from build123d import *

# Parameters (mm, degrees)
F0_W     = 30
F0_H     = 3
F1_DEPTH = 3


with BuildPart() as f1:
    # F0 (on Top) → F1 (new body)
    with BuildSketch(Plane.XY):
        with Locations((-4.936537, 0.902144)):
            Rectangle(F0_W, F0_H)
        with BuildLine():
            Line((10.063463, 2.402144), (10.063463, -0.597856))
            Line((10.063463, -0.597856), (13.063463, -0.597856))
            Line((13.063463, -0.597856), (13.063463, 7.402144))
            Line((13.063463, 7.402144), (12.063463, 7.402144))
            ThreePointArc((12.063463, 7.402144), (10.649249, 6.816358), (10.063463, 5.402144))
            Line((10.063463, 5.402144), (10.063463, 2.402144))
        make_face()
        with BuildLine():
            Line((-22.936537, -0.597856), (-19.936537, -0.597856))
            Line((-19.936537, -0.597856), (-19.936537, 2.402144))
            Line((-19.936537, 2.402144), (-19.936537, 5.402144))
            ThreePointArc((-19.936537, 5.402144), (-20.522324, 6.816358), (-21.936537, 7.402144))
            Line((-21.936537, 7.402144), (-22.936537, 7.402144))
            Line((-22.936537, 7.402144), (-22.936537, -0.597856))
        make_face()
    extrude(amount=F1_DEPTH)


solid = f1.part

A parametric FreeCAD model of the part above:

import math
import FreeCAD as App
import Part
import Sketcher

doc = App.newDocument("Part")
params = doc.addObject("Spreadsheet::Sheet", "Params")
for row, (alias, value) in enumerate([
    ("sketch1_radius", "1.999999 mm"),
    ("sketch1_width", "1 mm"),
    ("sketch1_width2", "30 mm"),
    ("sketch1_height", "8 mm"),
    ("sketch1_height2", "3 mm"),
    ("pad1_length", "3 mm"),
], start=1):
    params.set(f"A{row}", alias)
    params.set(f"B{row}", "=" + value)
    params.setAlias(f"B{row}", alias)

body = doc.addObject("PartDesign::Body", "Body")

sketch1 = body.newObject("Sketcher::SketchObject", "Sketch")
sketch1.AttachmentSupport = (doc.getObject("XY_Plane"), [""])
sketch1.MapMode = "FlatFace"
sketch1.addGeometry(Part.LineSegment(App.Vector(13.1, -0.6, 0), App.Vector(13.1, 7.4, 0)), False)
sketch1.addGeometry(Part.LineSegment(App.Vector(13.1, 7.4, 0), App.Vector(12.1, 7.4, 0)), False)
sketch1.addGeometry(Part.ArcOfCircle(Part.Circle(App.Vector(12.1, 5.4, 0), App.Vector(0, 0, 1), 2), math.radians(90), math.radians(180)), False)
sketch1.addGeometry(Part.LineSegment(App.Vector(10.1, 5.4, 0), App.Vector(10.1, 2.4, 0)), False)
sketch1.addGeometry(Part.LineSegment(App.Vector(10.1, 2.4, 0), App.Vector(-19.9, 2.4, 0)), False)
sketch1.addGeometry(Part.LineSegment(App.Vector(-19.9, 2.4, 0), App.Vector(-19.9, 5.4, 0)), False)
sketch1.addGeometry(Part.ArcOfCircle(Part.Circle(App.Vector(-21.9, 5.4, 0), App.Vector(0, 0, 1), 2), math.radians(0), math.radians(90)), False)
sketch1.addGeometry(Part.LineSegment(App.Vector(-21.9, 7.4, 0), App.Vector(-22.9, 7.4, 0)), False)
sketch1.addGeometry(Part.LineSegment(App.Vector(-22.9, 7.4, 0), App.Vector(-22.9, -0.6, 0)), False)
sketch1.addGeometry(Part.LineSegment(App.Vector(-22.9, -0.6, 0), App.Vector(13.1, -0.6, 0)), False)
sketch1.addConstraint(Sketcher.Constraint("Coincident", 0, 2, 1, 1))
sketch1.addConstraint(Sketcher.Constraint("Tangent", 1, 2, 2, 1))
sketch1.addConstraint(Sketcher.Constraint("Tangent", 2, 2, 3, 1))
sketch1.addConstraint(Sketcher.Constraint("Coincident", 3, 2, 4, 1))
sketch1.addConstraint(Sketcher.Constraint("Coincident", 4, 2, 5, 1))
sketch1.addConstraint(Sketcher.Constraint("Tangent", 5, 2, 6, 1))
sketch1.addConstraint(Sketcher.Constraint("Tangent", 6, 2, 7, 1))
sketch1.addConstraint(Sketcher.Constraint("Coincident", 7, 2, 8, 1))
sketch1.addConstraint(Sketcher.Constraint("Coincident", 8, 2, 9, 1))
sketch1.addConstraint(Sketcher.Constraint("Coincident", 9, 2, 0, 1))
sketch1.addConstraint(Sketcher.Constraint("Vertical", 0))
sketch1.addConstraint(Sketcher.Constraint("Horizontal", 1))
sketch1.addConstraint(Sketcher.Constraint("Vertical", 3))
sketch1.addConstraint(Sketcher.Constraint("Horizontal", 4))
sketch1.addConstraint(Sketcher.Constraint("Vertical", 5))
sketch1.addConstraint(Sketcher.Constraint("Horizontal", 7))
sketch1.addConstraint(Sketcher.Constraint("Vertical", 8))
sketch1.addConstraint(Sketcher.Constraint("Horizontal", 9))
sketch1.addConstraint(Sketcher.Constraint("Equal", 2, 6))
sketch1.addConstraint(Sketcher.Constraint("Horizontal", 2, 3, 6, 3))
sketch1.addConstraint(Sketcher.Constraint("Equal", 1, 7))
sketch1.addConstraint(Sketcher.Constraint("Radius", 2, 1.999999))
sketch1.addConstraint(Sketcher.Constraint("DistanceX", 1, 2, 1, 1, 1.0))
sketch1.addConstraint(Sketcher.Constraint("DistanceX", 4, 2, 4, 1, 30.0))
sketch1.addConstraint(Sketcher.Constraint("DistanceY", 0, 1, 0, 2, 8.0))
sketch1.addConstraint(Sketcher.Constraint("DistanceY", 3, 2, 3, 1, 3.0))
sketch1.addConstraint(Sketcher.Constraint("DistanceX", -1, 1, 2, 3, 12.063462))
sketch1.addConstraint(Sketcher.Constraint("DistanceY", -1, 1, 2, 3, 5.402145))
sketch1.setExpression("Constraints[21]", "Params.sketch1_radius")
sketch1.setExpression("Constraints[22]", "Params.sketch1_width")
sketch1.setExpression("Constraints[23]", "Params.sketch1_width2")
sketch1.setExpression("Constraints[24]", "Params.sketch1_height")
sketch1.setExpression("Constraints[25]", "Params.sketch1_height2")
pad1 = body.newObject("PartDesign::Pad", "Pad")
pad1.Profile = sketch1
pad1.setExpression("Length", "Params.pad1_length")

doc.recompute()
